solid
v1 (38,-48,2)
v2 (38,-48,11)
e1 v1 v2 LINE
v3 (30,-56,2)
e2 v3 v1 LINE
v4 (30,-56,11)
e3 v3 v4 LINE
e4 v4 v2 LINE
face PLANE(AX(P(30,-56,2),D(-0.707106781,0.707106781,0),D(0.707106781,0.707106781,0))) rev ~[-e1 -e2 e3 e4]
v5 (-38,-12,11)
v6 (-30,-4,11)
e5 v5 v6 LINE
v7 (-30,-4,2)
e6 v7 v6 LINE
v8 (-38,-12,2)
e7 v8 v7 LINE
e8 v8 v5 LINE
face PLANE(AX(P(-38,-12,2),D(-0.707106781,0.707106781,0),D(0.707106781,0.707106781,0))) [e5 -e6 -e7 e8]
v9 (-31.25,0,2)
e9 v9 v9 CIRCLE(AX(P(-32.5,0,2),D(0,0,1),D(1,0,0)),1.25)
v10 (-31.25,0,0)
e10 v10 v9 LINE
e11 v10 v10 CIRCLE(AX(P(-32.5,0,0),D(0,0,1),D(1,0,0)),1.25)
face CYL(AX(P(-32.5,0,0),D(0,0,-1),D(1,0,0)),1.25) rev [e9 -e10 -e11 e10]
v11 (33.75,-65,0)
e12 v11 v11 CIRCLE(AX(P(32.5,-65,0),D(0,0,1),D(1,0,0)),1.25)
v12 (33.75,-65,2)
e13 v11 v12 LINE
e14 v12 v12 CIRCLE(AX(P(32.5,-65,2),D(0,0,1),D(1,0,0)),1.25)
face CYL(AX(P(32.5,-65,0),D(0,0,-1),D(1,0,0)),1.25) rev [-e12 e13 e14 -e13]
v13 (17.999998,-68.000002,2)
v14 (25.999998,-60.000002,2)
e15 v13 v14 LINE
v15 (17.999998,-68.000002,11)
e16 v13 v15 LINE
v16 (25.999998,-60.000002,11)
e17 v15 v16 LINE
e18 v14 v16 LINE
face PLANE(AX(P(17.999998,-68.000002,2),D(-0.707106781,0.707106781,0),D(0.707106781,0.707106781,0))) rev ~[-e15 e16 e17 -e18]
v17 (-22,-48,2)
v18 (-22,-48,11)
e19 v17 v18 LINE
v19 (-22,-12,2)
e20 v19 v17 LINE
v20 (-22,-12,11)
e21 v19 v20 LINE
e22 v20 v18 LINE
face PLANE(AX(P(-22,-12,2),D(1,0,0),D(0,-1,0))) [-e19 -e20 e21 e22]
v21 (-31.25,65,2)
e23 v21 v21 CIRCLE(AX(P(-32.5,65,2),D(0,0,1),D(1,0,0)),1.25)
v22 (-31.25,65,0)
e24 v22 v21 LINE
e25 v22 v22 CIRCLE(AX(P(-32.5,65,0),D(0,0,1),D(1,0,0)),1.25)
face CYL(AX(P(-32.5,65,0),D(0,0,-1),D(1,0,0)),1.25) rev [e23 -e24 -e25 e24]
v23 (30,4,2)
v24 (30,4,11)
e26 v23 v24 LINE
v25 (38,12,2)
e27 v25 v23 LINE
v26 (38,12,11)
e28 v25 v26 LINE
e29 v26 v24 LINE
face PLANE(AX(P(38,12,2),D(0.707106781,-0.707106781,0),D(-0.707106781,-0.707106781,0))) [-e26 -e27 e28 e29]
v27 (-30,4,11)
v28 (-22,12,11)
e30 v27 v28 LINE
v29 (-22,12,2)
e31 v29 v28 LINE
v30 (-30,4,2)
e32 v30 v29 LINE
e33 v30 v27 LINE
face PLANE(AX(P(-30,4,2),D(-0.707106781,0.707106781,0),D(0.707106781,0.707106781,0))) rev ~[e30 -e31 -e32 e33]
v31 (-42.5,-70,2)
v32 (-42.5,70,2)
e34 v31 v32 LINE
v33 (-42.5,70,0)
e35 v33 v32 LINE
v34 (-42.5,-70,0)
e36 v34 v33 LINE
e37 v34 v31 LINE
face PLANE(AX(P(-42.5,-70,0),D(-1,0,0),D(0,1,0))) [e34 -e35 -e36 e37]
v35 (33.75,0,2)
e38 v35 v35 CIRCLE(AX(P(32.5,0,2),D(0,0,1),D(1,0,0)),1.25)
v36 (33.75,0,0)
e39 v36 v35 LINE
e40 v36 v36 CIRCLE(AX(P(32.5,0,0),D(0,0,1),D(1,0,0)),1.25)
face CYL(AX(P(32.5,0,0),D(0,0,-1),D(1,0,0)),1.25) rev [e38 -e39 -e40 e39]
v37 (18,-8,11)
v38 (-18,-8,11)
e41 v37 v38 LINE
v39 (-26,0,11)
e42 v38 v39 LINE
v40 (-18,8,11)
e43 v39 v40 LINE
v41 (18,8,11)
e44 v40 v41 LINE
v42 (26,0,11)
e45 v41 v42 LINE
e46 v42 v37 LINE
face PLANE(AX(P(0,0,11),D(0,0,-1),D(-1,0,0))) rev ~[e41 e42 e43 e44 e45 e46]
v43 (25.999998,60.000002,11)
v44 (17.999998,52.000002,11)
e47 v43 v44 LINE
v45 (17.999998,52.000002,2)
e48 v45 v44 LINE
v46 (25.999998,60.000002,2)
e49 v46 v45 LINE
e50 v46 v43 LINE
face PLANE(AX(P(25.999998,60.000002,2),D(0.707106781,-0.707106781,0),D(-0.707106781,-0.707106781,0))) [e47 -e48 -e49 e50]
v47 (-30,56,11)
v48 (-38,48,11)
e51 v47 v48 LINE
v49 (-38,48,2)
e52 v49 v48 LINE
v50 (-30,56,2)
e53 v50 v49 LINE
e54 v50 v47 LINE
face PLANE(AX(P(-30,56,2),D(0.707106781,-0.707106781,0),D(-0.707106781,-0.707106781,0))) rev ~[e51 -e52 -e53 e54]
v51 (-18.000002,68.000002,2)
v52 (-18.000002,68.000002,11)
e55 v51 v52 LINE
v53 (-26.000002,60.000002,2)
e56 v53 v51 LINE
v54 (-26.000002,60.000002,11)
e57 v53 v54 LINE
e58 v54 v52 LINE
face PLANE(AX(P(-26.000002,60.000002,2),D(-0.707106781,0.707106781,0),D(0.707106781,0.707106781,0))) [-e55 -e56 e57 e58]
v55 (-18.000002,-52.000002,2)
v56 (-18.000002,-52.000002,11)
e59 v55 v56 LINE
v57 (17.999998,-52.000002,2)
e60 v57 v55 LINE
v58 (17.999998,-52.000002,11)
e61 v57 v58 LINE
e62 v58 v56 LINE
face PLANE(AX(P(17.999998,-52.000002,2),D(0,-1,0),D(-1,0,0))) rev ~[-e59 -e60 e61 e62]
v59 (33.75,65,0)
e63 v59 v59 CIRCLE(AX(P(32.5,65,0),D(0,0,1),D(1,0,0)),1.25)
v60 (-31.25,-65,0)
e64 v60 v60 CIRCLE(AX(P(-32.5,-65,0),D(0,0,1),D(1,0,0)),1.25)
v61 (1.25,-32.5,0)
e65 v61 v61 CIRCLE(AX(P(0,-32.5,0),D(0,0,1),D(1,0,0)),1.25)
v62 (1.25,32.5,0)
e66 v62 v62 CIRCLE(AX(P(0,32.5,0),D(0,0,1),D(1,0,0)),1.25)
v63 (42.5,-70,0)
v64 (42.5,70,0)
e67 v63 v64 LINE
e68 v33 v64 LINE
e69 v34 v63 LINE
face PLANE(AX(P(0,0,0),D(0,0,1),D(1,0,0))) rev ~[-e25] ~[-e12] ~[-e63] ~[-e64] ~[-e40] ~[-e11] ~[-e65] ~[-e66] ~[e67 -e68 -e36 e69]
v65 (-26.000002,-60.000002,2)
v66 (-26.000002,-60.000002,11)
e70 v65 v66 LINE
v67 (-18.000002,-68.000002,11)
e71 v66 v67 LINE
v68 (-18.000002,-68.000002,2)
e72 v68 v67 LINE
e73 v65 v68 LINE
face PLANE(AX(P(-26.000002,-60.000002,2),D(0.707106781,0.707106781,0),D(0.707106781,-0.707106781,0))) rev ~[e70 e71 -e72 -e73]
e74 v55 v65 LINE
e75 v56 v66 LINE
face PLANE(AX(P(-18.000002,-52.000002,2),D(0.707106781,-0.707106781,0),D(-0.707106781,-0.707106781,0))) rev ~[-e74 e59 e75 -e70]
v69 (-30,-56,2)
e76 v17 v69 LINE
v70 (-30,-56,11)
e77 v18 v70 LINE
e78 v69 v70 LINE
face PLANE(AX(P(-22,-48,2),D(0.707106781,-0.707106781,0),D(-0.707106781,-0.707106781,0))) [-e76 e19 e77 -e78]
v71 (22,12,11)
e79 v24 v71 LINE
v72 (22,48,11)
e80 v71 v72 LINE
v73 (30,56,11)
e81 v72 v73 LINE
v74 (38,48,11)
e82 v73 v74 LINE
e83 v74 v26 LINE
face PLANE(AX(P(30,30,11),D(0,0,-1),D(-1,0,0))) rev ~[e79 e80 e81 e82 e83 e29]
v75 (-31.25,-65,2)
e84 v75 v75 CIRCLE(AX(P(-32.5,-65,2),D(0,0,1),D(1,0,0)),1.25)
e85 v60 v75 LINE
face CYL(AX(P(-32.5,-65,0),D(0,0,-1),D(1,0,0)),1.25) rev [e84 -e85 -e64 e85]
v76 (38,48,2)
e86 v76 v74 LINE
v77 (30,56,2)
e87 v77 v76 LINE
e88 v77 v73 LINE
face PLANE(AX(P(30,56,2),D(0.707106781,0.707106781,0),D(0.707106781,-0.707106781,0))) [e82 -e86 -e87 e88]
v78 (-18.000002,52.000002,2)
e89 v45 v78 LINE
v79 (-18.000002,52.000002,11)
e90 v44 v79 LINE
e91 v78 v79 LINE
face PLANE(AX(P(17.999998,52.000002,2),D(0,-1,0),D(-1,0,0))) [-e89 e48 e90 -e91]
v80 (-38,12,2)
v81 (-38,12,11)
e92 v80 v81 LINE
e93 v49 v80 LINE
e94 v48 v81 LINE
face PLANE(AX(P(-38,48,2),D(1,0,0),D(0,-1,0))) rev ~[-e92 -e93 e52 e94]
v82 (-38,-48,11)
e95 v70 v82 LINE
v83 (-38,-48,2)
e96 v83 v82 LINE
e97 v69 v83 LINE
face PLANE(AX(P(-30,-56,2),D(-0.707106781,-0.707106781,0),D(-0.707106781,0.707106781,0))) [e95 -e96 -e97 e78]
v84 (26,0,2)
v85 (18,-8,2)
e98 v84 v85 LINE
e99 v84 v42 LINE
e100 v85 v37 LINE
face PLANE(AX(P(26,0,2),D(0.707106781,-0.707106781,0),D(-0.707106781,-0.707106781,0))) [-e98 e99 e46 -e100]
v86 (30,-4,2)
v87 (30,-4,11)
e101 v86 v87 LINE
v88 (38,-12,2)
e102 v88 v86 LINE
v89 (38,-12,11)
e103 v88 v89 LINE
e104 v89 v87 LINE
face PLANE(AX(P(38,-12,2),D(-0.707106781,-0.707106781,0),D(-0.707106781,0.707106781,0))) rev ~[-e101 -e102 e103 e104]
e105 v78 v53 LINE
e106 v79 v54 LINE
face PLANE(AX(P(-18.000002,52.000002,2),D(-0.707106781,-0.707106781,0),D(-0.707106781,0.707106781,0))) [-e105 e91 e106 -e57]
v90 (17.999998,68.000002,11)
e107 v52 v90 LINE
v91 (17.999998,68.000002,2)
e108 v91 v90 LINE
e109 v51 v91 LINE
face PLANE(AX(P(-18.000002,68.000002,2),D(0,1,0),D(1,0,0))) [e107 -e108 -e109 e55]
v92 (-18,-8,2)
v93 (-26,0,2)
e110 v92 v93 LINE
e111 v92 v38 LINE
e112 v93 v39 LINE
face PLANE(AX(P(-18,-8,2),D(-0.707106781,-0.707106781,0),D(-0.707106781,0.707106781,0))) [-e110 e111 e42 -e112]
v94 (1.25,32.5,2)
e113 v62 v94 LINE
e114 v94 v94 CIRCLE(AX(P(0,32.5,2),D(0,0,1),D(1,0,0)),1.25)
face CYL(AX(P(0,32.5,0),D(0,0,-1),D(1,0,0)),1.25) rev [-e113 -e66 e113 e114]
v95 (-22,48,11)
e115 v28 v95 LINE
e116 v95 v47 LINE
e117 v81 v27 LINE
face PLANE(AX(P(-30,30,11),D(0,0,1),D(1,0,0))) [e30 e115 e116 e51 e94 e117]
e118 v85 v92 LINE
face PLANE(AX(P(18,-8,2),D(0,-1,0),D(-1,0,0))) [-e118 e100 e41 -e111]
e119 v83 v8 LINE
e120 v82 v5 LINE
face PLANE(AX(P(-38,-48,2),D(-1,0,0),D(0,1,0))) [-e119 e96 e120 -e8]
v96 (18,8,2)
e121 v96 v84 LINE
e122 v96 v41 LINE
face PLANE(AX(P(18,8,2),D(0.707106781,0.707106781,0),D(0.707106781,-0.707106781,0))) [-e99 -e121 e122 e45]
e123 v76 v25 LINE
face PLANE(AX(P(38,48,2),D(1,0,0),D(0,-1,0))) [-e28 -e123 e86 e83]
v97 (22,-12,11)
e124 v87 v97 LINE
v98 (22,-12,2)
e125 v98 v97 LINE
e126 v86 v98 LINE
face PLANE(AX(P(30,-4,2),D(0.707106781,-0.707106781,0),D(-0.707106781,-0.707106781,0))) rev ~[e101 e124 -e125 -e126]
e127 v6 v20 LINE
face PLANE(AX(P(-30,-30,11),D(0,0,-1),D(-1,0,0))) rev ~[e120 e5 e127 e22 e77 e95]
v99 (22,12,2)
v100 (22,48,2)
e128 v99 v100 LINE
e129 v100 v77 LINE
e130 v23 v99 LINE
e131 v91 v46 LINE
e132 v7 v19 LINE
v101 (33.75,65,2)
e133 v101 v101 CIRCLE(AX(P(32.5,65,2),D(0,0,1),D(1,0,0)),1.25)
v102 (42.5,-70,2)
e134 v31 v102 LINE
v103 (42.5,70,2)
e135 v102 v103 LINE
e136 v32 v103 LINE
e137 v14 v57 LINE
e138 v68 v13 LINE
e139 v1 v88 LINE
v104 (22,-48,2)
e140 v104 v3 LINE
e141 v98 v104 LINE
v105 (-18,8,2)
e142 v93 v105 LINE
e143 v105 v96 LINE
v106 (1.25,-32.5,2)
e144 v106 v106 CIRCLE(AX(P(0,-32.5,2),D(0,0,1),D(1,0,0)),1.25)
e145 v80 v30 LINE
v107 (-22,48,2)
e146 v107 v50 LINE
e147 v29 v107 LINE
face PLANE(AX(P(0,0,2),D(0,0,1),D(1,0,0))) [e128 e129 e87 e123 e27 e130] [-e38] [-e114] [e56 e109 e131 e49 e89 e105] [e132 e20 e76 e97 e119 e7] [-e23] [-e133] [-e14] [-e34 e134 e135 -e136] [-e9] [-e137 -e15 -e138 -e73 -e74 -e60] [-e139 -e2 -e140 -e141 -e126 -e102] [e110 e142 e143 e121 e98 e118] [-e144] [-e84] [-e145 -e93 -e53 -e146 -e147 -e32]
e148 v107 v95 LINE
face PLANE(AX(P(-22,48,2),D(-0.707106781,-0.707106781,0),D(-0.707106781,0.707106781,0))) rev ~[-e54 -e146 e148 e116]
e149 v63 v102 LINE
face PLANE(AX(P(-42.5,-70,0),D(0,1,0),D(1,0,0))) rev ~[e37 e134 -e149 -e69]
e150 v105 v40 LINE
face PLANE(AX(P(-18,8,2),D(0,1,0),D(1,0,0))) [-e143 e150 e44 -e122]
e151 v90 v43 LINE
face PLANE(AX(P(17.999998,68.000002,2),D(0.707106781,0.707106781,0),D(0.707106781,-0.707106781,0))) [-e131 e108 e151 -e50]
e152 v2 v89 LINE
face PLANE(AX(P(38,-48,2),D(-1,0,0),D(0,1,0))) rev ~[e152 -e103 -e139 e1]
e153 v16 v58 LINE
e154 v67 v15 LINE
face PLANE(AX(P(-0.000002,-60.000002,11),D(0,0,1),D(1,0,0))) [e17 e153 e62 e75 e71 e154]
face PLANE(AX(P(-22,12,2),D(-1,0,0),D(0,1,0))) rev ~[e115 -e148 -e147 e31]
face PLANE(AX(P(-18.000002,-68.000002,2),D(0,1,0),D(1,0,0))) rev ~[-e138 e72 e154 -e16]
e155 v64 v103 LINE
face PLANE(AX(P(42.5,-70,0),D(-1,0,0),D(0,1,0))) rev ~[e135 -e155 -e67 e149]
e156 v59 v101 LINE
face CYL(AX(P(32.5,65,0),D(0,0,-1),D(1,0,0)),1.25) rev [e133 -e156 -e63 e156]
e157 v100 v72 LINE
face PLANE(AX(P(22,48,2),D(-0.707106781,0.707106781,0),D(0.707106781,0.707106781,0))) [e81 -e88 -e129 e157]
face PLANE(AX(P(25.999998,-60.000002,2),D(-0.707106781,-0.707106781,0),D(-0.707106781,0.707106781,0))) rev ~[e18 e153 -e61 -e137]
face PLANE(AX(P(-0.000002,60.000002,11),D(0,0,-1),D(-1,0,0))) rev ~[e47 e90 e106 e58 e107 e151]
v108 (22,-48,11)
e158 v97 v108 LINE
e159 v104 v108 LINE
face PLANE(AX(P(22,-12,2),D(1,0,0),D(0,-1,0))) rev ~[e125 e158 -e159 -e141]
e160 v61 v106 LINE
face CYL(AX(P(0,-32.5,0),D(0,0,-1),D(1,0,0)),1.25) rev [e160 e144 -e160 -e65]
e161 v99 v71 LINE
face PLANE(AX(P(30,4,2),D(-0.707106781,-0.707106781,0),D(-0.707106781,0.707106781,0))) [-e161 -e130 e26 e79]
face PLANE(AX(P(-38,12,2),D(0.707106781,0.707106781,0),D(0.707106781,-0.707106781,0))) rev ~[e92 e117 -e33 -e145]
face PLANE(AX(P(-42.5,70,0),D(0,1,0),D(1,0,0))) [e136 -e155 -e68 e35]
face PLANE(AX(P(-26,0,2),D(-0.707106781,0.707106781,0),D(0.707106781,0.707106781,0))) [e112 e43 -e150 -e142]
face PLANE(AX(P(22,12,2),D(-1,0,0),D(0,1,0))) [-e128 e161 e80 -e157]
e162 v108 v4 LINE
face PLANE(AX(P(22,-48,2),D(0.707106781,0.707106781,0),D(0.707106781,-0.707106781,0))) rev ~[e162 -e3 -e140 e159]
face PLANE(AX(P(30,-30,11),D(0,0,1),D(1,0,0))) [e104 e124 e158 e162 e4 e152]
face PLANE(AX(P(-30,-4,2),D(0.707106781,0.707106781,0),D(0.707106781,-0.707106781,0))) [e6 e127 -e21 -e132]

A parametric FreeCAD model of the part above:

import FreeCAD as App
import Part
import Sketcher
from FreeCAD import Vector


def add_polygon(sketch, points):
    """Adds a closed chain of lines whose ends are joined by coincident constraints."""
    first, n = sketch.GeometryCount, len(points)
    for a, b in zip(points, points[1:] + points[:1]):
        sketch.addGeometry(Part.LineSegment(App.Vector(*a, 0), App.Vector(*b, 0)), False)
    for i in range(n):
        sketch.addConstraint(Sketcher.Constraint("Coincident", first + i, 2, first + (i + 1) % n, 1))

doc = App.newDocument("Part")
body = doc.addObject("PartDesign::Body", "Body")

# Sketch on XY plane
sketch1 = body.newObject("Sketcher::SketchObject", "Sketch")
sketch1.AttachmentSupport = (doc.getObject("XY_Plane"), [""])
sketch1.MapMode = "FlatFace"
add_polygon(sketch1, [(-42.5, 70), (-42.5, -70), (42.5, -70), (42.5, 70)])  # lines 0-3
sketch1.addGeometry(Part.Circle(Vector(-32.5, -65, 0), Vector(0, 0, 1), 1.2), False)  # 4
sketch1.addGeometry(Part.Circle(Vector(32.5, -65, 0), Vector(0, 0, 1), 1.2), False)  # 5
sketch1.addGeometry(Part.Circle(Vector(0, -32.5, 0), Vector(0, 0, 1), 1.2), False)  # 6
sketch1.addGeometry(Part.Circle(Vector(-32.5, 0, 0), Vector(0, 0, 1), 1.2), False)  # 7
sketch1.addGeometry(Part.Circle(Vector(-32.5, 65, 0), Vector(0, 0, 1), 1.2), False)  # 8
sketch1.addGeometry(Part.Circle(Vector(0, 32.5, 0), Vector(0, 0, 1), 1.2), False)  # 9
sketch1.addGeometry(Part.Circle(Vector(32.5, 0, 0), Vector(0, 0, 1), 1.2), False)  # 10
sketch1.addGeometry(Part.Circle(Vector(32.5, 65, 0), Vector(0, 0, 1), 1.2), False)  # 11
sketch1.addConstraint([
    Sketcher.Constraint("Vertical", 0),
    Sketcher.Constraint("Horizontal", 1),
    Sketcher.Constraint("Vertical", 2),
    Sketcher.Constraint("Horizontal", 3),
    Sketcher.Constraint("Equal", 4, 5),
    Sketcher.Constraint("Equal", 5, 6),
    Sketcher.Constraint("Equal", 6, 7),
    Sketcher.Constraint("Equal", 7, 8),
    Sketcher.Constraint("Equal", 8, 9),
    Sketcher.Constraint("Equal", 9, 10),
    Sketcher.Constraint("Equal", 10, 11),
    Sketcher.Constraint("Symmetric", 5, 3, 8, 3, -1, 1),
    Sketcher.Constraint("Symmetric", 6, 3, 9, 3, -1, 1),
    Sketcher.Constraint("Symmetric", 7, 3, 10, 3, -1, 1),
    Sketcher.Constraint("Symmetric", 4, 3, 11, 3, -1, 1),
    Sketcher.Constraint("Symmetric", 0, 2, 2, 2, -1, 1),
    Sketcher.Constraint("Symmetric", 4, 3, 5, 3, -2),
    Sketcher.Constraint("PointOnObject", 6, 3, -2),
    Sketcher.Constraint("PointOnObject", 7, 3, -1),
    Sketcher.Constraint("Vertical", 4, 3, 7, 3),
    Sketcher.Constraint("Diameter", 4, 2.5),
    Sketcher.Constraint("DistanceX", 1, 1, 1, 2, 85.0),
    Sketcher.Constraint("DistanceY", 0, 2, 0, 1, 140.0),
    Sketcher.Constraint("DistanceY", 4, 3, -1, 1, 65.0),
    Sketcher.Constraint("DistanceX", 4, 3, 5, 3, 65.0),
    Sketcher.Constraint("DistanceY", 6, 3, 9, 3, 65.0),
])
pad1 = body.newObject("PartDesign::Pad", "Pad")
pad1.Profile = sketch1
pad1.Length = 2

# Sketch on XY plane
sketch2 = body.newObject("Sketcher::SketchObject", "Sketch001")
sketch2.AttachmentSupport = (doc.getObject("XY_Plane"), [""])
sketch2.MapMode = "FlatFace"
sketch2.AttachmentOffset = App.Placement(Vector(0, 0, 2), App.Rotation())
add_polygon(sketch2, [(30, 56), (22, 48), (22, 12), (30, 4), (38, 12), (38, 48)])  # lines 0-5
add_polygon(sketch2, [(-22, 48), (-30, 56), (-38, 48), (-38, 12), (-30, 4), (-22, 12)])  # lines 6-11
add_polygon(sketch2, [(22, -48), (30, -56), (38, -48), (38, -12), (30, -4), (22, -12)])  # lines 12-17
add_polygon(sketch2, [(-30, -56), (-22, -48), (-22, -12), (-30, -4), (-38, -12), (-38, -48)])  # lines 18-23
add_polygon(sketch2, [(-26, 0), (-18, -8), (18, -8), (26, 0), (18, 8), (-18, 8)])  # lines 24-29
add_polygon(sketch2, [(-26, 60), (-18, 52), (18, 52), (26, 60), (18, 68), (-18, 68)])  # lines 30-35
add_polygon(sketch2, [(-18, -52), (-26, -60), (-18, -68), (18, -68), (26, -60), (18, -52)])  # lines 36-41
sketch2.addConstraint([
    Sketcher.Constraint("Vertical", 1),
    Sketcher.Constraint("Vertical", 4),
    Sketcher.Constraint("Vertical", 8),
    Sketcher.Constraint("Vertical", 11),
    Sketcher.Constraint("Vertical", 14),
    Sketcher.Constraint("Vertical", 17),
    Sketcher.Constraint("Vertical", 19),
    Sketcher.Constraint("Vertical", 22),
    Sketcher.Constraint("Horizontal", 25),
    Sketcher.Constraint("Horizontal", 28),
    Sketcher.Constraint("Horizontal", 31),
    Sketcher.Constraint("Horizontal", 34),
    Sketcher.Constraint("Horizontal", 38),
    Sketcher.Constraint("Horizontal", 41),
    Sketcher.Constraint("Symmetric", 6, 2, 12, 2, -1, 1),
    Sketcher.Constraint("Symmetric", 7, 2, 13, 2, -1, 1),
    Sketcher.Constraint("Symmetric", 9, 2, 15, 2, -1, 1),
    Sketcher.Constraint("Symmetric", 10, 2, 16, 2, -1, 1),
    Sketcher.Constraint("Symmetric", 0, 2, 18, 2, -1, 1),
    Sketcher.Constraint("Symmetric", 2, 2, 20, 2, -1, 1),
    Sketcher.Constraint("Symmetric", 3, 2, 21, 2, -1, 1),
    Sketcher.Constraint("Symmetric", 5, 2, 23, 2, -1, 1),
    Sketcher.Constraint("Symmetric", 24, 2, 27, 2, -1, 1),
    Sketcher.Constraint("Symmetric", 26, 2, 29, 2, -1, 1),
    Sketcher.Constraint("Symmetric", 32, 2, 36, 2, -1, 1),
    Sketcher.Constraint("Symmetric", 33, 2, 37, 2, -1, 1),
    Sketcher.Constraint("Symmetric", 35, 2, 39, 2, -1, 1),
    Sketcher.Constraint("Symmetric", 30, 2, 40, 2, -1, 1),
    Sketcher.Constraint("Symmetric", 5, 2, 6, 2, -2),
    Sketcher.Constraint("Symmetric", 4, 2, 7, 2, -2),
    Sketcher.Constraint("Symmetric", 2, 2, 9, 2, -2),
    Sketcher.Constraint("Symmetric", 1, 2, 10, 2, -2),
    Sketcher.Constraint("Symmetric", 32, 2, 35, 2, -2),
    Sketcher.Constraint("PointOnObject", 26, 2, -1),
    Sketcher.Constraint("Perpendicular", 0, 2),
    Sketcher.Constraint("Perpendicular", 2, 3),
    Sketcher.Constraint("Perpendicular", 3, 5),
    Sketcher.Constraint("Parallel", 5, 6),
    Sketcher.Constraint("Perpendicular", 6, 7),
    Sketcher.Constraint("Perpendicular", 7, 9),
    Sketcher.Constraint("Perpendicular", 10, 12),
    Sketcher.Constraint("Perpendicular", 13, 15),
    Sketcher.Constraint("Perpendicular", 18, 20),
    Sketcher.Constraint("Perpendicular", 21, 23),
    Sketcher.Constraint("Parallel", 23, 24),
    Sketcher.Constraint("Perpendicular", 24, 26),
    Sketcher.Constraint("Perpendicular", 27, 29),
    Sketcher.Constraint("Perpendicular", 29, 30),
    Sketcher.Constraint("Perpendicular", 30, 32),
    Sketcher.Constraint("Perpendicular", 32, 33),
    Sketcher.Constraint("Perpendicular", 33, 35),
    Sketcher.Constraint("Parallel", 35, 36),
    Sketcher.Constraint("Perpendicular", 37, 39),
    Sketcher.Constraint("Horizontal", 1, 2, 3, 2),
    Sketcher.Constraint("Horizontal", 0, 2, 4, 2),
    Sketcher.Constraint("Vertical", 28, 2, 30, 2),
    Sketcher.Constraint("Vertical", 26, 2, 32, 2),
    Sketcher.Constraint("Vertical", 31, 2, 33, 2),
    Sketcher.Constraint("Equal", 41, 1),
    Sketcher.Constraint("Equal", 23, 24),
    Sketcher.Constraint("DistanceX", 25, 1, 25, 2, 36.0),
    Sketcher.Constraint("DistanceX", -1, 1, 0, 2, 22.0),
    Sketcher.Constraint("DistanceY", -1, 1, 0, 2, 48.0),
    Sketcher.Constraint("DistanceX", -1, 1, 2, 2, 30.0),
    Sketcher.Constraint("DistanceY", -1, 1, 30, 2, 52.000002),
])
pad2 = body.newObject("PartDesign::Pad", "Pad001")
pad2.Profile = sketch2
pad2.Length = 9

doc.recompute()
